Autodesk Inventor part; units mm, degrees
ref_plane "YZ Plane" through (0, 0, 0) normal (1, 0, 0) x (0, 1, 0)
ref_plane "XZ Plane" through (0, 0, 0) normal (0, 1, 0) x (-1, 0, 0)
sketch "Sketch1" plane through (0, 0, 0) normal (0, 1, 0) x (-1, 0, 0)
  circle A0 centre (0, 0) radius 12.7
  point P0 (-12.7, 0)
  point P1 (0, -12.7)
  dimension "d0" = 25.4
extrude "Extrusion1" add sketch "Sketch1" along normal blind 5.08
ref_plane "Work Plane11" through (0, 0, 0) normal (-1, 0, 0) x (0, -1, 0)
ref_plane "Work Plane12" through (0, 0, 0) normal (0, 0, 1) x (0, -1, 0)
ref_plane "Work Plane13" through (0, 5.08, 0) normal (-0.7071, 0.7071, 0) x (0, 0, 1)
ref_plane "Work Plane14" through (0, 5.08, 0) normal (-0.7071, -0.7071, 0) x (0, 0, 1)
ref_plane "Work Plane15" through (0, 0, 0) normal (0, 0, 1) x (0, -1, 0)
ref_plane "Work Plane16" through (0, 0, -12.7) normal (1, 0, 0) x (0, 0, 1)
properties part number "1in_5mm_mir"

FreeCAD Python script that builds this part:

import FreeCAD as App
import Part
import Sketcher

V = App.Vector
Q = App.Units.Quantity

doc = App.newDocument("Part")
body = doc.addObject("PartDesign::Body", "Body")

sketch1 = doc.addObject("Sketcher::SketchObject", "Sketch")
body.addObject(sketch1)
sketch1.AttachmentSupport = (doc.XZ_Plane, [""])
sketch1.MapMode = "FlatFace"
sketch1.addGeometry(Part.Circle(V(0, 0, 0), V(0, 0, 1), 13), False)
sketch1.addConstraint([
    Sketcher.Constraint("Coincident", 0, 3, -1, 1),
    Sketcher.Constraint("Diameter", 0, Q("1 in")),
])
pad1 = doc.addObject("PartDesign::Pad", "Pad")
body.addObject(pad1)
pad1.Profile = sketch1
pad1.Length = Q("0.2 in")
pad1.Reversed = True

doc.recompute()
